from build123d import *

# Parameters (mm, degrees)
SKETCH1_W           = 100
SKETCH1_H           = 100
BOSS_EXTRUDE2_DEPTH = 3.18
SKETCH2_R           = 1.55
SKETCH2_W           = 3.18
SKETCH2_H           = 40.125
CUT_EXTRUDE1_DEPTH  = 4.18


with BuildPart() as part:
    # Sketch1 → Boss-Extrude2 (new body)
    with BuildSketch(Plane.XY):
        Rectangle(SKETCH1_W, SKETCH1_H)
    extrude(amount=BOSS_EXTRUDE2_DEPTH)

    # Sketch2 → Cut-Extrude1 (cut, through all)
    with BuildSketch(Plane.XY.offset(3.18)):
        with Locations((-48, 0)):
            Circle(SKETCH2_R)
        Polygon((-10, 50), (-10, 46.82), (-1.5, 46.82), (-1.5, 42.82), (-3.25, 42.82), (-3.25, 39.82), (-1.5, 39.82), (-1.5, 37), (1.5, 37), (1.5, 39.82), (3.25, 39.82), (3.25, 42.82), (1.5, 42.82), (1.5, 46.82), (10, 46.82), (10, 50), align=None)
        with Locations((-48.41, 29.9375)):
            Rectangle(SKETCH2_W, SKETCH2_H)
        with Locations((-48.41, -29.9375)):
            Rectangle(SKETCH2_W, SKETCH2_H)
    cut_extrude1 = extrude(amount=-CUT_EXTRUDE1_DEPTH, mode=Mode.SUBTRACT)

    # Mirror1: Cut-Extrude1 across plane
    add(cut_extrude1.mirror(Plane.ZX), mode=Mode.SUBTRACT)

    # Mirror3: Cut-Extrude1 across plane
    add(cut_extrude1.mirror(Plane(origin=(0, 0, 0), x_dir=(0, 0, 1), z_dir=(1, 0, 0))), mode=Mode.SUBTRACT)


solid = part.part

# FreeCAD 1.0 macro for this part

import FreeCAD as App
import Part
import Sketcher
Q = App.Units.Quantity

doc = App.newDocument("Part")
params = doc.addObject("Spreadsheet::Sheet", "Params")
for row, (alias, value) in enumerate([
    ("sketch1_width", "100 mm"),
    ("pad1_length", "3.18 mm"),
    ("sketch2_diameter", "3.1 mm"),
    ("sketch2_width", "3 mm"),
    ("sketch2_width2", "20 mm"),
    ("sketch2_height", "4 mm"),
    ("sketch2_width3", "1.75 mm"),
], start=1):
    params.set(f"A{row}", alias)
    params.set(f"B{row}", "=" + value)
    params.setAlias(f"B{row}", alias)

body = doc.addObject("PartDesign::Body", "Body")

# Sketch on XY plane
sketch1 = body.newObject("Sketcher::SketchObject", "Sketch")
sketch1.AttachmentSupport = (doc.getObject("XY_Plane"), [""])
sketch1.MapMode = "FlatFace"
sketch1.addGeometry(Part.LineSegment(App.Vector(-50, 50, 0), App.Vector(-50, -50, 0)), False)
sketch1.addGeometry(Part.LineSegment(App.Vector(-50, -50, 0), App.Vector(50, -50, 0)), False)
sketch1.addGeometry(Part.LineSegment(App.Vector(50, -50, 0), App.Vector(50, 50, 0)), False)
sketch1.addGeometry(Part.LineSegment(App.Vector(50, 50, 0), App.Vector(-50, 50, 0)), False)
sketch1.addConstraint(Sketcher.Constraint("Coincident", 0, 2, 1, 1))
sketch1.addConstraint(Sketcher.Constraint("Coincident", 1, 2, 2, 1))
sketch1.addConstraint(Sketcher.Constraint("Coincident", 2, 2, 3, 1))
sketch1.addConstraint(Sketcher.Constraint("Coincident", 3, 2, 0, 1))
sketch1.addConstraint(Sketcher.Constraint("Vertical", 0))
sketch1.addConstraint(Sketcher.Constraint("Horizontal", 1))
sketch1.addConstraint(Sketcher.Constraint("Vertical", 2))
sketch1.addConstraint(Sketcher.Constraint("Horizontal", 3))
sketch1.addConstraint(Sketcher.Constraint("Symmetric", 0, 2, 2, 2, -1, 1))
sketch1.addConstraint(Sketcher.Constraint("Equal", 3, 0))
sketch1.addConstraint(Sketcher.Constraint("DistanceX", 1, 1, 1, 2, Q("100 mm")))
sketch1.setExpression("Constraints[10]", "Params.sketch1_width")
pad1 = body.newObject("PartDesign::Pad", "Pad")
pad1.Profile = sketch1
pad1.setExpression("Length", "Params.pad1_length")

# Sketch on XY plane
sketch2 = body.newObject("Sketcher::SketchObject", "Sketch001")
sketch2.AttachmentSupport = (doc.getObject("XY_Plane"), [""])
sketch2.MapMode = "FlatFace"
sketch2.AttachmentOffset = App.Placement(App.Vector(0, 0, 3.18), App.Rotation())
sketch2.addGeometry(Part.Circle(App.Vector(-48, 0, 0), App.Vector(0, 0, 1), 1.6), False)
sketch2.addGeometry(Part.LineSegment(App.Vector(-10, 50, 0), App.Vector(-10, 46.8, 0)), False)
sketch2.addGeometry(Part.LineSegment(App.Vector(-10, 46.8, 0), App.Vector(-1.5, 46.8, 0)), False)
sketch2.addGeometry(Part.LineSegment(App.Vector(-1.5, 46.8, 0), App.Vector(-1.5, 42.8, 0)), False)
sketch2.addGeometry(Part.LineSegment(App.Vector(-1.5, 42.8, 0), App.Vector(-3.2, 42.8, 0)), False)
sketch2.addGeometry(Part.LineSegment(App.Vector(-3.2, 42.8, 0), App.Vector(-3.2, 39.8, 0)), False)
sketch2.addGeometry(Part.LineSegment(App.Vector(-3.2, 39.8, 0), App.Vector(-1.5, 39.8, 0)), False)
sketch2.addGeometry(Part.LineSegment(App.Vector(-1.5, 39.8, 0), App.Vector(-1.5, 37, 0)), False)
sketch2.addGeometry(Part.LineSegment(App.Vector(-1.5, 37, 0), App.Vector(1.5, 37, 0)), False)
sketch2.addGeometry(Part.LineSegment(App.Vector(1.5, 37, 0), App.Vector(1.5, 39.8, 0)), False)
sketch2.addGeometry(Part.LineSegment(App.Vector(1.5, 39.8, 0), App.Vector(3.2, 39.8, 0)), False)
sketch2.addGeometry(Part.LineSegment(App.Vector(3.2, 39.8, 0), App.Vector(3.2, 42.8, 0)), False)
sketch2.addGeometry(Part.LineSegment(App.Vector(3.2, 42.8, 0), App.Vector(1.5, 42.8, 0)), False)
sketch2.addGeometry(Part.LineSegment(App.Vector(1.5, 42.8, 0), App.Vector(1.5, 46.8, 0)), False)
sketch2.addGeometry(Part.LineSegment(App.Vector(1.5, 46.8, 0), App.Vector(10, 46.8, 0)), False)
sketch2.addGeometry(Part.LineSegment(App.Vector(10, 46.8, 0), App.Vector(10, 50, 0)), False)
sketch2.addGeometry(Part.LineSegment(App.Vector(10, 50, 0), App.Vector(-10, 50, 0)), False)
sketch2.addGeometry(Part.LineSegment(App.Vector(-50, 50, 0), App.Vector(-50, 9.9, 0)), False)
sketch2.addGeometry(Part.LineSegment(App.Vector(-50, 9.9, 0), App.Vector(-46.8, 9.9, 0)), False)
sketch2.addGeometry(Part.LineSegment(App.Vector(-46.8, 9.9, 0), App.Vector(-46.8, 50, 0)), False)
sketch2.addGeometry(Part.LineSegment(App.Vector(-46.8, 50, 0), App.Vector(-50, 50, 0)), False)
sketch2.addGeometry(Part.LineSegment(App.Vector(-50, -9.9, 0), App.Vector(-50, -50, 0)), False)
sketch2.addGeometry(Part.LineSegment(App.Vector(-50, -50, 0), App.Vector(-46.8, -50, 0)), False)
sketch2.addGeometry(Part.LineSegment(App.Vector(-46.8, -50, 0), App.Vector(-46.8, -9.9, 0)), False)
sketch2.addGeometry(Part.LineSegment(App.Vector(-46.8, -9.9, 0), App.Vector(-50, -9.9, 0)), False)
sketch2.addConstraint(Sketcher.Constraint("Coincident", 1, 2, 2, 1))
sketch2.addConstraint(Sketcher.Constraint("Coincident", 2, 2, 3, 1))
sketch2.addConstraint(Sketcher.Constraint("Coincident", 3, 2, 4, 1))
sketch2.addConstraint(Sketcher.Constraint("Coincident", 4, 2, 5, 1))
sketch2.addConstraint(Sketcher.Constraint("Coincident", 5, 2, 6, 1))
sketch2.addConstraint(Sketcher.Constraint("Coincident", 6, 2, 7, 1))
sketch2.addConstraint(Sketcher.Constraint("Coincident", 7, 2, 8, 1))
sketch2.addConstraint(Sketcher.Constraint("Coincident", 8, 2, 9, 1))
sketch2.addConstraint(Sketcher.Constraint("Coincident", 9, 2, 10, 1))
sketch2.addConstraint(Sketcher.Constraint("Coincident", 10, 2, 11, 1))
sketch2.addConstraint(Sketcher.Constraint("Coincident", 11, 2, 12, 1))
sketch2.addConstraint(Sketcher.Constraint("Coincident", 12, 2, 13, 1))
sketch2.addConstraint(Sketcher.Constraint("Coincident", 13, 2, 14, 1))
sketch2.addConstraint(Sketcher.Constraint("Coincident", 14, 2, 15, 1))
sketch2.addConstraint(Sketcher.Constraint("Coincident", 15, 2, 16, 1))
sketch2.addConstraint(Sketcher.Constraint("Coincident", 16, 2, 1, 1))
sketch2.addConstraint(Sketcher.Constraint("Coincident", 17, 2, 18, 1))
sketch2.addConstraint(Sketcher.Constraint("Coincident", 18, 2, 19, 1))
sketch2.addConstraint(Sketcher.Constraint("Coincident", 19, 2, 20, 1))
sketch2.addConstraint(Sketcher.Constraint("Coincident", 20, 2, 17, 1))
sketch2.addConstraint(Sketcher.Constraint("Coincident", 21, 2, 22, 1))
sketch2.addConstraint(Sketcher.Constraint("Coincident", 22, 2, 23, 1))
sketch2.addConstraint(Sketcher.Constraint("Coincident", 23, 2, 24, 1))
sketch2.addConstraint(Sketcher.Constraint("Coincident", 24, 2, 21, 1))
sketch2.addConstraint(Sketcher.Constraint("Vertical", 1))
sketch2.addConstraint(Sketcher.Constraint("Horizontal", 2))
sketch2.addConstraint(Sketcher.Constraint("Vertical", 3))
sketch2.addConstraint(Sketcher.Constraint("Horizontal", 4))
sketch2.addConstraint(Sketcher.Constraint("Vertical", 5))
sketch2.addConstraint(Sketcher.Constraint("Horizontal", 6))
sketch2.addConstraint(Sketcher.Constraint("Vertical", 7))
sketch2.addConstraint(Sketcher.Constraint("Horizontal", 8))
sketch2.addConstraint(Sketcher.Constraint("Vertical", 9))
sketch2.addConstraint(Sketcher.Constraint("Horizontal", 10))
sketch2.addConstraint(Sketcher.Constraint("Vertical", 11))
sketch2.addConstraint(Sketcher.Constraint("Horizontal", 12))
sketch2.addConstraint(Sketcher.Constraint("Vertical", 13))
sketch2.addConstraint(Sketcher.Constraint("Horizontal", 14))
sketch2.addConstraint(Sketcher.Constraint("Vertical", 15))
sketch2.addConstraint(Sketcher.Constraint("Horizontal", 16))
sketch2.addConstraint(Sketcher.Constraint("Vertical", 17))
sketch2.addConstraint(Sketcher.Constraint("Horizontal", 18))
sketch2.addConstraint(Sketcher.Constraint("Vertical", 19))
sketch2.addConstraint(Sketcher.Constraint("Horizontal", 20))
sketch2.addConstraint(Sketcher.Constraint("Vertical", 21))
sketch2.addConstraint(Sketcher.Constraint("Horizontal", 22))
sketch2.addConstraint(Sketcher.Constraint("Vertical", 23))
sketch2.addConstraint(Sketcher.Constraint("Horizontal", 24))
sketch2.addConstraint(Sketcher.Constraint("Symmetric", 6, 2, 9, 2, -2))
sketch2.addConstraint(Sketcher.Constraint("Symmetric", 4, 2, 11, 2, -2))
sketch2.addConstraint(Sketcher.Constraint("Symmetric", 2, 2, 13, 2, -2))
sketch2.addConstraint(Sketcher.Constraint("Symmetric", 20, 2, 21, 2, -1))
sketch2.addConstraint(Sketcher.Constraint("Symmetric", 18, 2, 23, 2, -1))
sketch2.addConstraint(Sketcher.Constraint("PointOnObject", 0, 3, -1))
sketch2.addConstraint(Sketcher.Constraint("Horizontal", 16, 2, 19, 2))
sketch2.addConstraint(Sketcher.Constraint("Vertical", 3, 2, 6, 2))
sketch2.addConstraint(Sketcher.Constraint("Equal", 2, 14))
sketch2.addConstraint(Sketcher.Constraint("Equal", 24, 1))
sketch2.addConstraint(Sketcher.Constraint("Equal", 8, 5))
sketch2.addConstraint(Sketcher.Constraint("Diameter", 0, Q("3.1 mm")))
sketch2.addConstraint(Sketcher.Constraint("DistanceX", 8, 1, 8, 2, Q("3 mm")))
sketch2.addConstraint(Sketcher.Constraint("DistanceX", 16, 2, 16, 1, Q("20 mm")))
sketch2.addConstraint(Sketcher.Constraint("DistanceY", 3, 2, 3, 1, Q("4 mm")))
sketch2.addConstraint(Sketcher.Constraint("DistanceX", 0, 3, -1, 1, Q("48 mm")))
sketch2.addConstraint(Sketcher.Constraint("DistanceY", -1, 1, 7, 2, Q("37 mm")))
sketch2.addConstraint(Sketcher.Constraint("DistanceY", -1, 1, 15, 2, Q("50 mm")))
sketch2.addConstraint(Sketcher.Constraint("DistanceX", 17, 2, -1, 1, Q("50 mm")))
sketch2.addConstraint(Sketcher.Constraint("DistanceX", 4, 2, 4, 1, Q("1.75 mm")))
sketch2.addConstraint(Sketcher.Constraint("DistanceX", 18, 1, 18, 2, Q("3.18 mm")))
sketch2.addConstraint(Sketcher.Constraint("DistanceY", 17, 2, 17, 1, Q("40.125 mm")))
sketch2.setExpression("Constraints[59]", "Params.sketch2_diameter")
sketch2.setExpression("Constraints[60]", "Params.sketch2_width")
sketch2.setExpression("Constraints[61]", "Params.sketch2_width2")
sketch2.setExpression("Constraints[62]", "Params.sketch2_height")
sketch2.setExpression("Constraints[67]", "Params.sketch2_width3")
pocket1 = body.newObject("PartDesign::Pocket", "Pocket")
pocket1.Profile = sketch2
pocket1.Type = "ThroughAll"
doc.recompute()

mirrored = body.newObject("PartDesign::Mirrored", "Mirrored")
mirrored.Originals = [pocket1]
mirrored.MirrorPlane = (doc.getObject("XZ_Plane"), [""])
body.Tip = mirrored
doc.recompute()

mirrored2 = body.newObject("PartDesign::Mirrored", "Mirrored001")
mirrored2.Originals = [pocket1]
mirrored2.MirrorPlane = (doc.getObject("YZ_Plane"), [""])
body.Tip = mirrored2

doc.recompute()
